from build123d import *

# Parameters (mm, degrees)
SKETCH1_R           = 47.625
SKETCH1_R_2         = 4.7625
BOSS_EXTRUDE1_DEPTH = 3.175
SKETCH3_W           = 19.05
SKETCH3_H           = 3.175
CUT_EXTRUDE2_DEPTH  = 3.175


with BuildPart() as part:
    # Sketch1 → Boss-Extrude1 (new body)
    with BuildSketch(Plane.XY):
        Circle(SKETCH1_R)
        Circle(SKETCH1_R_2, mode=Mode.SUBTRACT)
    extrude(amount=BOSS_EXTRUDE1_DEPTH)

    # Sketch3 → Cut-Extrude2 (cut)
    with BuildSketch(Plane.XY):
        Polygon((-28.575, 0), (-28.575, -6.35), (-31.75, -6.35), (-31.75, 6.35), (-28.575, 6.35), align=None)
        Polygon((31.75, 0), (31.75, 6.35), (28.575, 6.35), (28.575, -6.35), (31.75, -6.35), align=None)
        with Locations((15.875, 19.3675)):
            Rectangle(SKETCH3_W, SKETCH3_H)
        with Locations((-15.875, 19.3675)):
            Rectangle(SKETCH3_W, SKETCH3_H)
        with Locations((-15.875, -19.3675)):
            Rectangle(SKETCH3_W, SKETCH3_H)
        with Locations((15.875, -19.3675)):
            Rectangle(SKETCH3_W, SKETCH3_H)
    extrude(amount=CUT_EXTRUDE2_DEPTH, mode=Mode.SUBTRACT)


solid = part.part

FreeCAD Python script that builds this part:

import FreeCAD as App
import Part
import Sketcher
Q = App.Units.Quantity


def add_polygon(sketch, points):
    """Adds a closed chain of lines whose ends are joined by coincident constraints."""
    first, n = sketch.GeometryCount, len(points)
    for a, b in zip(points, points[1:] + points[:1]):
        sketch.addGeometry(Part.LineSegment(App.Vector(*a, 0), App.Vector(*b, 0)), False)
    for i in range(n):
        sketch.addConstraint(Sketcher.Constraint("Coincident", first + i, 2, first + (i + 1) % n, 1))

doc = App.newDocument("Part")
body = doc.addObject("PartDesign::Body", "Body")

sketch1 = body.newObject("Sketcher::SketchObject", "Sketch")
sketch1.AttachmentSupport = (doc.getObject("XY_Plane"), [""])
sketch1.MapMode = "FlatFace"
sketch1.addGeometry(Part.Circle(App.Vector(0, 0, 0), App.Vector(0, 0, 1), 47.6), False)
sketch1.addGeometry(Part.Circle(App.Vector(0, 0, 0), App.Vector(0, 0, 1), 4.8), False)
sketch1.addConstraint(Sketcher.Constraint("Coincident", 0, 3, -1, 1))
sketch1.addConstraint(Sketcher.Constraint("Coincident", 1, 3, -1, 1))
sketch1.addConstraint(Sketcher.Constraint("Diameter", 0, Q("3.75 in")))
sketch1.addConstraint(Sketcher.Constraint("Diameter", 1, Q("0.375 in")))
pad1 = body.newObject("PartDesign::Pad", "Pad")
pad1.Profile = sketch1
pad1.Length = Q("0.125 in")

sketch2 = body.newObject("Sketcher::SketchObject", "Sketch001")
sketch2.AttachmentSupport = (doc.getObject("XY_Plane"), [""])
sketch2.MapMode = "FlatFace"
add_polygon(sketch2, [(-28.6, -6.3), (-28.6, 6.3), (-31.8, 6.3), (-31.8, -6.3)])
add_polygon(sketch2, [(31.8, 6.3), (28.6, 6.3), (28.6, -6.3), (31.8, -6.3)])
add_polygon(sketch2, [(6.3, 21), (6.3, 17.8), (25.4, 17.8), (25.4, 21)])
add_polygon(sketch2, [(-25.4, 21), (-25.4, 17.8), (-6.3, 17.8), (-6.3, 21)])
add_polygon(sketch2, [(-25.4, -17.8), (-25.4, -21), (-6.3, -21), (-6.3, -17.8)])
add_polygon(sketch2, [(6.3, -17.8), (6.3, -21), (25.4, -21), (25.4, -17.8)])
sketch2.addConstraint(Sketcher.Constraint("Vertical", 0))
sketch2.addConstraint(Sketcher.Constraint("Horizontal", 1))
sketch2.addConstraint(Sketcher.Constraint("Vertical", 2))
sketch2.addConstraint(Sketcher.Constraint("Horizontal", 3))
sketch2.addConstraint(Sketcher.Constraint("Horizontal", 4))
sketch2.addConstraint(Sketcher.Constraint("Vertical", 5))
sketch2.addConstraint(Sketcher.Constraint("Horizontal", 6))
sketch2.addConstraint(Sketcher.Constraint("Vertical", 7))
sketch2.addConstraint(Sketcher.Constraint("Vertical", 8))
sketch2.addConstraint(Sketcher.Constraint("Horizontal", 9))
sketch2.addConstraint(Sketcher.Constraint("Vertical", 10))
sketch2.addConstraint(Sketcher.Constraint("Horizontal", 11))
sketch2.addConstraint(Sketcher.Constraint("Vertical", 12))
sketch2.addConstraint(Sketcher.Constraint("Horizontal", 13))
sketch2.addConstraint(Sketcher.Constraint("Vertical", 14))
sketch2.addConstraint(Sketcher.Constraint("Horizontal", 15))
sketch2.addConstraint(Sketcher.Constraint("Vertical", 16))
sketch2.addConstraint(Sketcher.Constraint("Horizontal", 17))
sketch2.addConstraint(Sketcher.Constraint("Vertical", 18))
sketch2.addConstraint(Sketcher.Constraint("Horizontal", 19))
sketch2.addConstraint(Sketcher.Constraint("Vertical", 20))
sketch2.addConstraint(Sketcher.Constraint("Horizontal", 21))
sketch2.addConstraint(Sketcher.Constraint("Vertical", 22))
sketch2.addConstraint(Sketcher.Constraint("Horizontal", 23))
sketch2.addConstraint(Sketcher.Constraint("Symmetric", 3, 2, 4, 2, -1, 1))
sketch2.addConstraint(Sketcher.Constraint("Symmetric", 1, 2, 6, 2, -1, 1))
sketch2.addConstraint(Sketcher.Constraint("Symmetric", 10, 2, 16, 2, -1, 1))
sketch2.addConstraint(Sketcher.Constraint("Symmetric", 8, 2, 18, 2, -1, 1))
sketch2.addConstraint(Sketcher.Constraint("Symmetric", 14, 2, 20, 2, -1, 1))
sketch2.addConstraint(Sketcher.Constraint("Symmetric", 12, 2, 22, 2, -1, 1))
sketch2.addConstraint(Sketcher.Constraint("Symmetric", 9, 2, 12, 2, -2))
sketch2.addConstraint(Sketcher.Constraint("Symmetric", 11, 2, 14, 2, -2))
sketch2.addConstraint(Sketcher.Constraint("Horizontal", 1, 2, 4, 2))
sketch2.addConstraint(Sketcher.Constraint("Equal", 6, 8))
sketch2.addConstraint(Sketcher.Constraint("DistanceY", 0, 1, 0, 2, Q("0.5 in")))
sketch2.addConstraint(Sketcher.Constraint("DistanceX", -1, 1, 9, 2, Q("1 in")))
sketch2.addConstraint(Sketcher.Constraint("DistanceX", 8, 2, 7, 2, Q("1 in")))
sketch2.addConstraint(Sketcher.Constraint("DistanceX", 9, 1, 9, 2, Q("0.75 in")))
sketch2.addConstraint(Sketcher.Constraint("DistanceY", -1, 1, 8, 2, Q("0.7 in")))
sketch2.addConstraint(Sketcher.Constraint("DistanceX", 1, 2, 1, 1, Q("0.125 in")))
pocket1 = body.newObject("PartDesign::Pocket", "Pocket")
pocket1.Profile = sketch2
pocket1.Length = Q("0.125 in")
pocket1.Reversed = True

doc.recompute()
